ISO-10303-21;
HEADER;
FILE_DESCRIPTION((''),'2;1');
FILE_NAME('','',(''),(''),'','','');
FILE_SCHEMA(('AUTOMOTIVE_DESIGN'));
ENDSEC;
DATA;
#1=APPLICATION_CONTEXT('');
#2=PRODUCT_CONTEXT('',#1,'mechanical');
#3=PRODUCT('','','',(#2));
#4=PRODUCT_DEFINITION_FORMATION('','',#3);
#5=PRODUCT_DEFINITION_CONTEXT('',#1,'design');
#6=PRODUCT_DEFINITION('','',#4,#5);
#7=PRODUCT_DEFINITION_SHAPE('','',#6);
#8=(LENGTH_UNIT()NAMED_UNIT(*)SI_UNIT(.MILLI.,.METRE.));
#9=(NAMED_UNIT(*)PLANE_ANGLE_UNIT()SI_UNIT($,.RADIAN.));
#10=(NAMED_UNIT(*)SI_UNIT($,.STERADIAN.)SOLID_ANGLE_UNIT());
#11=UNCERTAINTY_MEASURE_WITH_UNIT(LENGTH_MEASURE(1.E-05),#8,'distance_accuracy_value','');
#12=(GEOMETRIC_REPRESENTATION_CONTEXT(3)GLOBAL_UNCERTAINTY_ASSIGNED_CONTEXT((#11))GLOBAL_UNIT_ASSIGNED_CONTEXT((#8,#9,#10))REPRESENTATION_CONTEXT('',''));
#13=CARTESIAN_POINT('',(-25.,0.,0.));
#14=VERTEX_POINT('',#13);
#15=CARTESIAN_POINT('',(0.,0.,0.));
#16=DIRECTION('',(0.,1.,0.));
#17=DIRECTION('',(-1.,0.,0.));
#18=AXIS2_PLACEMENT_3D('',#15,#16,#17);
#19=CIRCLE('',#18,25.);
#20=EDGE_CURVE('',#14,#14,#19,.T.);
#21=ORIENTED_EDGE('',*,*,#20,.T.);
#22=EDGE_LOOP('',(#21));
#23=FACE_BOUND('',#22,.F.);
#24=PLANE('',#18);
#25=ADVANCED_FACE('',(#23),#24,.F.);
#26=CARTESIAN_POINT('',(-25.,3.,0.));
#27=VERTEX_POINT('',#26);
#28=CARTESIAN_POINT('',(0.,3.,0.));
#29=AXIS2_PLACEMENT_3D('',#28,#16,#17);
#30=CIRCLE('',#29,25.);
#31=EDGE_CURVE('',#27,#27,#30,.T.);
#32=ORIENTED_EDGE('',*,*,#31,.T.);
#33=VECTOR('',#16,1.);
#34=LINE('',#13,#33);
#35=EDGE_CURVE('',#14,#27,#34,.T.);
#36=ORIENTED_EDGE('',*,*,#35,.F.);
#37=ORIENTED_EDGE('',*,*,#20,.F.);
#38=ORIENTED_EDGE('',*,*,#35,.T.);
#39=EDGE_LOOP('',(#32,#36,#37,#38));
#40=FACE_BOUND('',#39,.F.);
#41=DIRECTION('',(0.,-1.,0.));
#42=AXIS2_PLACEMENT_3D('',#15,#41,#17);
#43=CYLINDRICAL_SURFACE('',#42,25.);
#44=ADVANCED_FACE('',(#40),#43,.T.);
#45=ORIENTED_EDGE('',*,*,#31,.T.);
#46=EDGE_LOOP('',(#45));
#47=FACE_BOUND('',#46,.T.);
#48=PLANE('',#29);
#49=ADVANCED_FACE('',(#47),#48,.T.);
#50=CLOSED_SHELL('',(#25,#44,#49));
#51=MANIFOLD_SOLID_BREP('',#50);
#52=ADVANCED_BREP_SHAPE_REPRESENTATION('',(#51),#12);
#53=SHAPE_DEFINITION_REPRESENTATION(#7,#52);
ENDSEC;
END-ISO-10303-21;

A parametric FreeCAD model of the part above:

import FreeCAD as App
import Part
import Sketcher

V = App.Vector
Q = App.Units.Quantity

doc = App.newDocument("Part")
body = doc.addObject("PartDesign::Body", "Body")

# Sketch on XZ plane
sketch1 = doc.addObject("Sketcher::SketchObject", "Sketch")
body.addObject(sketch1)
sketch1.AttachmentSupport = (doc.XZ_Plane, [""])
sketch1.MapMode = "FlatFace"
sketch1.addGeometry(Part.Circle(V(0, 0, 0), V(0, 0, 1), 25), False)
sketch1.addConstraint([
    Sketcher.Constraint("Coincident", 0, 3, -1, 1),
    Sketcher.Constraint("Diameter", 0, Q("50 mm")),
])
pad1 = doc.addObject("PartDesign::Pad", "Pad")
body.addObject(pad1)
pad1.Profile = sketch1
pad1.Length = 3
pad1.Reversed = True

doc.recompute()
